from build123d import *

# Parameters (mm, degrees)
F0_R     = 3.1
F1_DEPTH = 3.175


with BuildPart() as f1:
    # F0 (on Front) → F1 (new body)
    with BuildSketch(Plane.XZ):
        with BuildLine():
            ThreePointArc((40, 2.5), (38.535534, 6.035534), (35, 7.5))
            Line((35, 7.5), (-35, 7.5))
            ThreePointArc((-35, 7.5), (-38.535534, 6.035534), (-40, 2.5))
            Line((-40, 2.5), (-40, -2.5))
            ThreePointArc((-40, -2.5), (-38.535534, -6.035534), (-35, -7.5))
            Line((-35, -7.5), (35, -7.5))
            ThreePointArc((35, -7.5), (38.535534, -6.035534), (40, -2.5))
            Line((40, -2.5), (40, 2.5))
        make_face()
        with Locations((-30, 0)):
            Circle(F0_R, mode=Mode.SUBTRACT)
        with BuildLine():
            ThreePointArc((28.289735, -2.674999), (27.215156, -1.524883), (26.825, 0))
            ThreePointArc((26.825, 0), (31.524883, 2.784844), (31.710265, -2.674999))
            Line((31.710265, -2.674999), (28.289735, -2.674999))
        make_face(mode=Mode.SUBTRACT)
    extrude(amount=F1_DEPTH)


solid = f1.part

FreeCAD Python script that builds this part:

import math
import FreeCAD as App
import Part
import Sketcher
from FreeCAD import Vector
Q = App.Units.Quantity

doc = App.newDocument("Part")
body = doc.addObject("PartDesign::Body", "Body")

sketch1 = body.newObject("Sketcher::SketchObject", "Sketch")
sketch1.AttachmentSupport = (doc.getObject("XZ_Plane"), [""])
sketch1.MapMode = "FlatFace"
sketch1.addGeometry(Part.ArcOfCircle(Part.Circle(Vector(35, 2.5, 0), Vector(0, 0, 1), 5), math.radians(0), math.radians(90)), False)
sketch1.addGeometry(Part.LineSegment(Vector(35, 7.5, 0), Vector(-35, 7.5, 0)), False)
sketch1.addGeometry(Part.ArcOfCircle(Part.Circle(Vector(-35, 2.5, 0), Vector(0, 0, 1), 5), math.radians(90), math.radians(180)), False)
sketch1.addGeometry(Part.LineSegment(Vector(-40, 2.5, 0), Vector(-40, -2.5, 0)), False)
sketch1.addGeometry(Part.ArcOfCircle(Part.Circle(Vector(-35, -2.5, 0), Vector(0, 0, 1), 5), math.radians(180), math.radians(270)), False)
sketch1.addGeometry(Part.LineSegment(Vector(-35, -7.5, 0), Vector(35, -7.5, 0)), False)
sketch1.addGeometry(Part.ArcOfCircle(Part.Circle(Vector(35, -2.5, 0), Vector(0, 0, 1), 5), math.radians(-90), math.radians(0)), False)
sketch1.addGeometry(Part.LineSegment(Vector(40, -2.5, 0), Vector(40, 2.5, 0)), False)
sketch1.addGeometry(Part.Circle(Vector(-30, 0, 0), Vector(0, 0, 1), 3.1), False)
sketch1.addGeometry(Part.LineSegment(Vector(31.7, -2.7, 0), Vector(28.3, -2.7, 0)), False)
sketch1.addGeometry(Part.ArcOfCircle(Part.Circle(Vector(30, 0, 0), Vector(0, 0, 1), 3.2), math.radians(-180), math.radians(-123)), False)
sketch1.addGeometry(Part.ArcOfCircle(Part.Circle(Vector(30, 0, 0), Vector(0, 0, 1), 3.2), math.radians(-57), math.radians(180)), False)
sketch1.addConstraint(Sketcher.Constraint("Tangent", 0, 2, 1, 1))
sketch1.addConstraint(Sketcher.Constraint("Tangent", 1, 2, 2, 1))
sketch1.addConstraint(Sketcher.Constraint("Tangent", 2, 2, 3, 1))
sketch1.addConstraint(Sketcher.Constraint("Tangent", 3, 2, 4, 1))
sketch1.addConstraint(Sketcher.Constraint("Tangent", 4, 2, 5, 1))
sketch1.addConstraint(Sketcher.Constraint("Tangent", 5, 2, 6, 1))
sketch1.addConstraint(Sketcher.Constraint("Tangent", 6, 2, 7, 1))
sketch1.addConstraint(Sketcher.Constraint("Tangent", 7, 2, 0, 1))
sketch1.addConstraint(Sketcher.Constraint("Coincident", 9, 2, 10, 2))
sketch1.addConstraint(Sketcher.Constraint("Tangent", 10, 1, 11, 2))
sketch1.addConstraint(Sketcher.Constraint("Coincident", 11, 1, 9, 1))
sketch1.addConstraint(Sketcher.Constraint("Horizontal", 1))
sketch1.addConstraint(Sketcher.Constraint("Vertical", 3))
sketch1.addConstraint(Sketcher.Constraint("Horizontal", 5))
sketch1.addConstraint(Sketcher.Constraint("Vertical", 7))
sketch1.addConstraint(Sketcher.Constraint("Horizontal", 9))
sketch1.addConstraint(Sketcher.Constraint("Equal", 0, 2))
sketch1.addConstraint(Sketcher.Constraint("Equal", 2, 4))
sketch1.addConstraint(Sketcher.Constraint("Equal", 4, 6))
sketch1.addConstraint(Sketcher.Constraint("Equal", 10, 11))
sketch1.addConstraint(Sketcher.Constraint("Symmetric", 0, 3, 4, 3, -1, 1))
sketch1.addConstraint(Sketcher.Constraint("Symmetric", 8, 3, 10, 3, -1, 1))
sketch1.addConstraint(Sketcher.Constraint("PointOnObject", 8, 3, -1))
sketch1.addConstraint(Sketcher.Constraint("PointOnObject", 10, 1, -1))
sketch1.addConstraint(Sketcher.Constraint("Radius", 0, Q("5 mm")))
sketch1.addConstraint(Sketcher.Constraint("Diameter", 8, Q("6.2 mm")))
sketch1.addConstraint(Sketcher.Constraint("DistanceX", 1, 2, 1, 1, Q("70 mm")))
sketch1.addConstraint(Sketcher.Constraint("DistanceY", 3, 2, 3, 1, Q("5 mm")))
sketch1.addConstraint(Sketcher.Constraint("DistanceX", 8, 3, -1, 1, Q("30 mm")))
sketch1.addConstraint(Sketcher.Constraint("Radius", 10, Q("3.175001 mm")))
sketch1.addConstraint(Sketcher.Constraint("DistanceY", 9, 2, -1, 1, Q("2.674999 mm")))
pad1 = body.newObject("PartDesign::Pad", "Pad")
pad1.Profile = sketch1
pad1.Length = 3.175

doc.recompute()
